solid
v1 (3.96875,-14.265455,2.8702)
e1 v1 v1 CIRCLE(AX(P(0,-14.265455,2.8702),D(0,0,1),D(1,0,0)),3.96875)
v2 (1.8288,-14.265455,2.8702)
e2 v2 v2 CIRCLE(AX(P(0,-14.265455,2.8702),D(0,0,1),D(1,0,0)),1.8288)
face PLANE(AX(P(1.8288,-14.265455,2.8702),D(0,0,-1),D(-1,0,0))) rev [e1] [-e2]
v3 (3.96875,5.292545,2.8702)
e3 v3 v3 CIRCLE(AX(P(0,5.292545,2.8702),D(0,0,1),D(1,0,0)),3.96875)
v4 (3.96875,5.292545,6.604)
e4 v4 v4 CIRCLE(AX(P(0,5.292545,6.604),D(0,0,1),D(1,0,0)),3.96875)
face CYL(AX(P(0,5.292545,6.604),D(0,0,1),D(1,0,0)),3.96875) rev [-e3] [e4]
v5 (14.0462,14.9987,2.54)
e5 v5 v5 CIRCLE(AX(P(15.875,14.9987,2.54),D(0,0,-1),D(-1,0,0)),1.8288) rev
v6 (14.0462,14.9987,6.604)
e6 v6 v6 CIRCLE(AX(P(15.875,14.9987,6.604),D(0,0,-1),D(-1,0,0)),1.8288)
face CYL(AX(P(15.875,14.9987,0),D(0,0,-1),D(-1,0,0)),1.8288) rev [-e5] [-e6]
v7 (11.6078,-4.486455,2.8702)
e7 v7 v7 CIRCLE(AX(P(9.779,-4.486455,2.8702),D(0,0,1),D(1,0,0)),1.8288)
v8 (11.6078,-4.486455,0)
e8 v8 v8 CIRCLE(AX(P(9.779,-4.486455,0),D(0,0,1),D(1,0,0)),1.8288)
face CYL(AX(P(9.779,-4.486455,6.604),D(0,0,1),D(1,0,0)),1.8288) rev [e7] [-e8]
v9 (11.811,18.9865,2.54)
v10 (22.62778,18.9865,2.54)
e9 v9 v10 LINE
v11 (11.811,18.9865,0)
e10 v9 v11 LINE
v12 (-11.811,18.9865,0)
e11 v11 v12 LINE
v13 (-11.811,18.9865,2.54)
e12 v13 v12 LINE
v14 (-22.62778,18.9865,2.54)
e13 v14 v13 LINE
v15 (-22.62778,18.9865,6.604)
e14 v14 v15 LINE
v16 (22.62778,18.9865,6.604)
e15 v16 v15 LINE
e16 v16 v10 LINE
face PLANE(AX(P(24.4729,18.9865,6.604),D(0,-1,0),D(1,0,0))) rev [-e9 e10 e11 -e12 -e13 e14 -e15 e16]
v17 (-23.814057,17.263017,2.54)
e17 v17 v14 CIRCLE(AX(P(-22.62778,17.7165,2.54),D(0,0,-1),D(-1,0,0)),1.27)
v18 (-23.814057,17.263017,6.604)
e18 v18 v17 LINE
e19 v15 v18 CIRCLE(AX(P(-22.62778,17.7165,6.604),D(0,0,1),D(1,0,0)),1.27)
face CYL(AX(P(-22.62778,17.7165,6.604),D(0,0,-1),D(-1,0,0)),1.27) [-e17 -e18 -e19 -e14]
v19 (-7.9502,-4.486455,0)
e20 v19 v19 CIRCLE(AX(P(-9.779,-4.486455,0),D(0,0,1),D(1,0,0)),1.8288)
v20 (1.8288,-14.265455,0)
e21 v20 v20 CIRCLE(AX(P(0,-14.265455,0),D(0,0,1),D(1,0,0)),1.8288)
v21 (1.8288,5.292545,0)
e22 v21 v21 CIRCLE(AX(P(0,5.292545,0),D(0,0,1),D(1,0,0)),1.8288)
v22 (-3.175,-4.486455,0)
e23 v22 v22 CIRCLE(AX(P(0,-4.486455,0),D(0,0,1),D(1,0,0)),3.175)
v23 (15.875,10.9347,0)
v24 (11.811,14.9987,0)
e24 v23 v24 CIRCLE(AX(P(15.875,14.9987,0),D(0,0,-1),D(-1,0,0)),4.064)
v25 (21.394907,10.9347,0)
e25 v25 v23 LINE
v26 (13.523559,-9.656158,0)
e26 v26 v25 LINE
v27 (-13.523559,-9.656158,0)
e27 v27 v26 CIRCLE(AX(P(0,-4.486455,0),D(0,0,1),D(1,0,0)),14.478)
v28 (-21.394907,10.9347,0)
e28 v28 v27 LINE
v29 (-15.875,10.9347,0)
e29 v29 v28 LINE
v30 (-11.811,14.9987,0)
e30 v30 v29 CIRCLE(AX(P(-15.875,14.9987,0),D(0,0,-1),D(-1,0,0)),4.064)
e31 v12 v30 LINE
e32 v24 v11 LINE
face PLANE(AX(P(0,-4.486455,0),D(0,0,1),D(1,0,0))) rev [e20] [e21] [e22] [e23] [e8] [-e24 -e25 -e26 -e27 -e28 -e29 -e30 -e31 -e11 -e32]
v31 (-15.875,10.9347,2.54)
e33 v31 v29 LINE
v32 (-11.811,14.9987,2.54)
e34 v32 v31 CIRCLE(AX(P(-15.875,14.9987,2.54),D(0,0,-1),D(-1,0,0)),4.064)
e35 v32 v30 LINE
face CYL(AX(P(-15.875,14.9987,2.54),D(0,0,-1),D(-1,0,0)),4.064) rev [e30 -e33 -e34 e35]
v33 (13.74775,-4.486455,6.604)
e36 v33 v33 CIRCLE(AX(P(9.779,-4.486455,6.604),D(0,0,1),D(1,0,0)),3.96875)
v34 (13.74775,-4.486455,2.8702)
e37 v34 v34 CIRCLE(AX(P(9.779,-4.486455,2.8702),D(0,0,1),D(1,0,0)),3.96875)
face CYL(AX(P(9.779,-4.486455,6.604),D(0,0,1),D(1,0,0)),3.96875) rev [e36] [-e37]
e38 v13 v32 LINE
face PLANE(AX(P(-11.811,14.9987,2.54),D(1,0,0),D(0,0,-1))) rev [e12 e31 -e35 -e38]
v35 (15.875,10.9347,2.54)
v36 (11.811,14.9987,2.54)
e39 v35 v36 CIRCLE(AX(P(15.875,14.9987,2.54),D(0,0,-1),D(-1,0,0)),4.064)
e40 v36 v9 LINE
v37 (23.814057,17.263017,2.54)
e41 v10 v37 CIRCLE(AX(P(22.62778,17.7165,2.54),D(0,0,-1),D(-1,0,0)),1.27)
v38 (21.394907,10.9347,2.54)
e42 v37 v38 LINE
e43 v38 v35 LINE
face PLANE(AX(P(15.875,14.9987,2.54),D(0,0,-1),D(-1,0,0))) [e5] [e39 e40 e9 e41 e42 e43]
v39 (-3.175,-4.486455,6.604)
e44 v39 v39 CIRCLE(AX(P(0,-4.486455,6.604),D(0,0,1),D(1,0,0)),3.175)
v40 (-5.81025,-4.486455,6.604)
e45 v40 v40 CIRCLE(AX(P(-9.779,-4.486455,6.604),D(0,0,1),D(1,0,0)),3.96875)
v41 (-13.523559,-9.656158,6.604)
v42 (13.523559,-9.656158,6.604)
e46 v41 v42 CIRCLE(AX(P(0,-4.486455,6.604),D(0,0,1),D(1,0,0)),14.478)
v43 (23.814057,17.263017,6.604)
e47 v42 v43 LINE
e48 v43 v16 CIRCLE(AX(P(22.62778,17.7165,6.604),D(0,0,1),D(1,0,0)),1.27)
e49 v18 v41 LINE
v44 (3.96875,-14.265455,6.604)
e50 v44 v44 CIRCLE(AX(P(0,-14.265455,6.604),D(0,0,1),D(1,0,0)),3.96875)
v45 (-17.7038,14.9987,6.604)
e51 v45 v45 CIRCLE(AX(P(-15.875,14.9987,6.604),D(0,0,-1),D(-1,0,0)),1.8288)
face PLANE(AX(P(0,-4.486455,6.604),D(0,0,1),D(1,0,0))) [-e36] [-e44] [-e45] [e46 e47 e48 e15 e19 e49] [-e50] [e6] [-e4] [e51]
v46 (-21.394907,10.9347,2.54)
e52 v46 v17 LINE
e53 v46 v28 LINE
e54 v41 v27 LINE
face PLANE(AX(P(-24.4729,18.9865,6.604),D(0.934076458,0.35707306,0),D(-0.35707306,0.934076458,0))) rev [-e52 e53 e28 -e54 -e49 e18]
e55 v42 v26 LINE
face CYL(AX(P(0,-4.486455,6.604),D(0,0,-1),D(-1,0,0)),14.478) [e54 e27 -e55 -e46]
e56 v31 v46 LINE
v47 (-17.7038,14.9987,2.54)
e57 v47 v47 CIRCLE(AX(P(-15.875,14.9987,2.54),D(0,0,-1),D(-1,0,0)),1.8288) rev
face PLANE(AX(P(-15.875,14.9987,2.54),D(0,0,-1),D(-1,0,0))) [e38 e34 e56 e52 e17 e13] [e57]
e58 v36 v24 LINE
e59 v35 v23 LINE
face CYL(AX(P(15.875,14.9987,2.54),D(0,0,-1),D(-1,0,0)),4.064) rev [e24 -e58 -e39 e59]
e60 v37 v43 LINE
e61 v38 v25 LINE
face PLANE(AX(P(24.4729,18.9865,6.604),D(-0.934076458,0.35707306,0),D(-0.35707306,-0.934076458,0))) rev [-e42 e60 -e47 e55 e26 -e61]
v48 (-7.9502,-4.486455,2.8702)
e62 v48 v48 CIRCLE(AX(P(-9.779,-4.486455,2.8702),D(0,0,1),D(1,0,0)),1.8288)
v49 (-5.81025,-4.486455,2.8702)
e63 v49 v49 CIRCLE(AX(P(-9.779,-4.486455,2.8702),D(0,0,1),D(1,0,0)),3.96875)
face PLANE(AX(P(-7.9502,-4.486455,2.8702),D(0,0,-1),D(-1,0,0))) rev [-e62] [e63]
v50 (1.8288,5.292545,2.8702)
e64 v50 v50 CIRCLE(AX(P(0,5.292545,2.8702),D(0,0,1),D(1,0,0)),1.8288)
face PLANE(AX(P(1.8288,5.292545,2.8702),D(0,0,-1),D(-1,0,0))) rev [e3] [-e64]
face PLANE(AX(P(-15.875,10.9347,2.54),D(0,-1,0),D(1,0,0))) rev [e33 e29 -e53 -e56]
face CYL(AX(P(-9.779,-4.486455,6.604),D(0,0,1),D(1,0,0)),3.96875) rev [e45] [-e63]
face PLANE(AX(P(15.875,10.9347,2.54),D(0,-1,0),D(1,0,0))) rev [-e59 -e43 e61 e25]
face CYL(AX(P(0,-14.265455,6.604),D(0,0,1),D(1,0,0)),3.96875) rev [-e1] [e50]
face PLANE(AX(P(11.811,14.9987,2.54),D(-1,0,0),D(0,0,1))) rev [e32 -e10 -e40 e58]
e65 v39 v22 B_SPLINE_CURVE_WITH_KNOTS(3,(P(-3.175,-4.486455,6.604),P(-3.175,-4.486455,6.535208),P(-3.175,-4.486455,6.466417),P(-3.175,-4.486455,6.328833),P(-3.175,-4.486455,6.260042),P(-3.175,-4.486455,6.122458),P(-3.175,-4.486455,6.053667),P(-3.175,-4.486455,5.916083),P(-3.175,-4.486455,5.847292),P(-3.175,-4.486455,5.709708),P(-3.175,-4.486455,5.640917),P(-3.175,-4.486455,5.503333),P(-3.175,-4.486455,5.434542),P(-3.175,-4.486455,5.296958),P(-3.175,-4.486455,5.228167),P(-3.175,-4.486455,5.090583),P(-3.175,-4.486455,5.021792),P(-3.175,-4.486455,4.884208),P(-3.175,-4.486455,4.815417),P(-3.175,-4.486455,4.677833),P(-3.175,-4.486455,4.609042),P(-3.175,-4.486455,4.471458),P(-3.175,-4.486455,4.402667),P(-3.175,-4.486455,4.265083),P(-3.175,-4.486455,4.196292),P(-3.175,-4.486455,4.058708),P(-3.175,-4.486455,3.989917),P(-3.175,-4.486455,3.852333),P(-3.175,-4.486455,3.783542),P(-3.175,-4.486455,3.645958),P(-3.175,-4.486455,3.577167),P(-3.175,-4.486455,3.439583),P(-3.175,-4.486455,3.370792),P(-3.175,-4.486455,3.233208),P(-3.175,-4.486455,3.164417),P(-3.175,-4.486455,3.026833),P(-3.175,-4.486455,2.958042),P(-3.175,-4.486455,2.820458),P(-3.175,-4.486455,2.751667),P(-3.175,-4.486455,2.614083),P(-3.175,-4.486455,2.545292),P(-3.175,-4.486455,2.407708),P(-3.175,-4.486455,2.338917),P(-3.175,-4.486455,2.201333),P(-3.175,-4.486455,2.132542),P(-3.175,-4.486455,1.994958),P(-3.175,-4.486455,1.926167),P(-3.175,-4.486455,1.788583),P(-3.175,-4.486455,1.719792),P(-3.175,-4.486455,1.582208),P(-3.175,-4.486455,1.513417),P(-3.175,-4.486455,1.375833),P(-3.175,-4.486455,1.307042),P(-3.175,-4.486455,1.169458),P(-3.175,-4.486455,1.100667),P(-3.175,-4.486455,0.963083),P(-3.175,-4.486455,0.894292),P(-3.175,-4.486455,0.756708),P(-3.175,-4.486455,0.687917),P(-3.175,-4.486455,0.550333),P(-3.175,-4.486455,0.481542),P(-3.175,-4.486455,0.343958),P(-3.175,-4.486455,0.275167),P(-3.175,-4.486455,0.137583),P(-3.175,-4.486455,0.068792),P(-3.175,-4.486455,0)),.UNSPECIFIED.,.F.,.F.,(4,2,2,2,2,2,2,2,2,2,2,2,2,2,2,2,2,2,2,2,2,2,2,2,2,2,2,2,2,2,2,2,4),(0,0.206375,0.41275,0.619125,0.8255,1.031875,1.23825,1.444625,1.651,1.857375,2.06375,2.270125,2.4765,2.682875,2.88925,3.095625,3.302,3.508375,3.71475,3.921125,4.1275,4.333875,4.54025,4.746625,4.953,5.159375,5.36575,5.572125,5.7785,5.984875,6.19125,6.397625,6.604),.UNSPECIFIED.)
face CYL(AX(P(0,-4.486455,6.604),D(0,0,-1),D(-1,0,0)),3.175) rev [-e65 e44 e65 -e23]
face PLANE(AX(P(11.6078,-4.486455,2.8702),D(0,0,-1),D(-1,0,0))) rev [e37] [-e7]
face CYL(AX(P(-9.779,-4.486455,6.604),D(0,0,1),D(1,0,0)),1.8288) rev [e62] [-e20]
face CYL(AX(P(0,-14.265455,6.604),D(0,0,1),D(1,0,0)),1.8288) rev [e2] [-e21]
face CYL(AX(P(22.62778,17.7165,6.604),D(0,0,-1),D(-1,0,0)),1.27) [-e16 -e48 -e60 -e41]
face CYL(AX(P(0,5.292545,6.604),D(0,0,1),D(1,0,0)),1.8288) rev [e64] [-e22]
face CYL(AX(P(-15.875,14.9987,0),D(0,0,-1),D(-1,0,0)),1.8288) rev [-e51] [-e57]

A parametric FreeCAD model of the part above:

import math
import FreeCAD as App
import Part
import Sketcher

V = App.Vector
Q = App.Units.Quantity


def edges_at(feature, points):
    """Names of the edges that pass closest to the given points."""
    edges = feature.Shape.Edges
    near = lambda p: min(range(len(edges)), key=lambda i: edges[i].distToShape(Part.Vertex(*p))[0])
    return sorted({f"Edge{near(p) + 1}" for p in points})

doc = App.newDocument("Part")
params = doc.addObject("Spreadsheet::Sheet", "Params")
for row, (alias, value) in enumerate([
    ("sketch1_diameter", "0.25 in"),
    ("sketch1_radius", "0.57 in"),
    ("sketch1_width", "1.927 in"),
    ("pad1_length", "0.26 in"),
    ("sketch2_diameter", "0.144 in"),
    ("hole_diameter", "0.144 in"),
    ("hole_cbore_diameter", "0.3125 in"),
    ("hole_cbore_depth", "0.147 in"),
    ("sketch3_diameter", "0.144 in"),
    ("hole2_diameter", "0.144 in"),
    ("sketch4_radius", "0.16 in"),
    ("sketch4_height", "0.157 in"),
    ("pocket1_length", "0.1 in"),
    ("fillet_radius", "0.05 in"),
], start=1):
    params.set(f"A{row}", alias)
    params.set(f"B{row}", "=" + value)
    params.setAlias(f"B{row}", alias)

body = doc.addObject("PartDesign::Body", "Body")

# Sketch on XY plane
sketch1 = body.newObject("Sketcher::SketchObject", "Sketch")
sketch1.AttachmentSupport = (doc.getObject("XY_Plane"), [""])
sketch1.MapMode = "FlatFace"
sketch1.addGeometry([
    Part.LineSegment(V(13.5, -9.7, 0), V(24.5, 19, 0)),  # 0
    Part.LineSegment(V(24.5, 19, 0), V(-24.5, 19, 0)),  # 1
    Part.LineSegment(V(-24.5, 19, 0), V(-13.5, -9.7, 0)),  # 2
    Part.ArcOfCircle(Part.Circle(V(0, -4.5, 0), V(0, 0, 1), 14.5), math.radians(-159), math.radians(-21)),  # 3
    Part.Circle(V(0, -4.5, 0), V(0, 0, 1), 3.2),  # 4
], False)
sketch1.addConstraint([
    Sketcher.Constraint("Coincident", 0, 2, 1, 1),
    Sketcher.Constraint("Coincident", 1, 2, 2, 1),
    Sketcher.Constraint("Tangent", 2, 2, 3, 1),
    Sketcher.Constraint("Tangent", 3, 2, 0, 1),
    Sketcher.Constraint("Horizontal", 1),
    Sketcher.Constraint("Coincident", 4, 3, 3, 3),
    Sketcher.Constraint("Symmetric", 2, 2, 3, 2, -2),
    Sketcher.Constraint("Diameter", 4, Q("0.25 in")),
    Sketcher.Constraint("Radius", 3, Q("0.57 in")),
    Sketcher.Constraint("DistanceX", 1, 2, 1, 1, Q("1.927 in")),
    Sketcher.Constraint("DistanceY", -1, 1, 0, 2, Q("0.7475 in")),
    Sketcher.Constraint("DistanceX", 2, 2, -1, 1, 13.523559),
])
sketch1.setExpression("Constraints[7]", "Params.sketch1_diameter")
sketch1.setExpression("Constraints[8]", "Params.sketch1_radius")
sketch1.setExpression("Constraints[9]", "Params.sketch1_width")
pad1 = body.newObject("PartDesign::Pad", "Pad")
pad1.Profile = sketch1
pad1.setExpression("Length", "Params.pad1_length")

# Sketch on XY plane
sketch2 = body.newObject("Sketcher::SketchObject", "Sketch001")
sketch2.AttachmentSupport = (doc.getObject("XY_Plane"), [""])
sketch2.MapMode = "FlatFace"
sketch2.AttachmentOffset = App.Placement(V(0, 0, 0.26 * 25.4), App.Rotation())
sketch2.addGeometry([
    Part.Circle(V(0, -14.3, 0), V(0, 0, 1), 1.8),
    Part.Circle(V(0, 5.3, 0), V(0, 0, 1), 1.8),
    Part.Circle(V(9.8, -4.5, 0), V(0, 0, 1), 1.8),
    Part.Circle(V(-9.8, -4.5, 0), V(0, 0, 1), 1.8),
], False)
sketch2.addConstraint([
    Sketcher.Constraint("Equal", 0, 1),
    Sketcher.Constraint("Equal", 1, 2),
    Sketcher.Constraint("Equal", 2, 3),
    Sketcher.Constraint("Symmetric", 2, 3, 3, 3, -2),
    Sketcher.Constraint("PointOnObject", 0, 3, -2),
    Sketcher.Constraint("PointOnObject", 1, 3, -2),
    Sketcher.Constraint("Diameter", 0, Q("0.144 in")),
    Sketcher.Constraint("DistanceY", 0, 3, 1, 3, Q("0.77 in")),
    Sketcher.Constraint("DistanceX", 3, 3, 2, 3, Q("0.77 in")),
    Sketcher.Constraint("DistanceY", 0, 3, 2, 3, Q("0.385 in")),
    Sketcher.Constraint("DistanceY", 0, 3, -1, 1, 14.265455),
])
sketch2.setExpression("Constraints[6]", "Params.sketch2_diameter")
doc.recompute()
hole = body.newObject("PartDesign::Hole", "Hole")
hole.Profile = sketch2
hole.ThreadType = "None"
hole.setExpression("Diameter", "Params.hole_diameter")
hole.DepthType = "ThroughAll"
hole.HoleCutType = "Counterbore"
hole.setExpression("HoleCutDiameter", "Params.hole_cbore_diameter")
hole.setExpression("HoleCutDepth", "Params.hole_cbore_depth")

# Sketch on XY plane
sketch3 = body.newObject("Sketcher::SketchObject", "Sketch002")
sketch3.AttachmentSupport = (doc.getObject("XY_Plane"), [""])
sketch3.MapMode = "FlatFace"
sketch3.addGeometry([
    Part.Circle(V(-15.9, 15, 0), V(0, 0, 1), 1.8),
    Part.Circle(V(15.9, 15, 0), V(0, 0, 1), 1.8),
], False)
sketch3.addConstraint([
    Sketcher.Constraint("Equal", 0, 1),
    Sketcher.Constraint("Symmetric", 0, 3, 1, 3, -2),
    Sketcher.Constraint("Diameter", 0, Q("0.144 in")),
    Sketcher.Constraint("DistanceX", 0, 3, 1, 3, Q("1.25 in")),
    Sketcher.Constraint("DistanceY", -1, 1, 0, 3, Q("0.5905 in")),
])
sketch3.setExpression("Constraints[2]", "Params.sketch3_diameter")
doc.recompute()
hole2 = body.newObject("PartDesign::Hole", "Hole001")
hole2.Profile = sketch3
hole2.ThreadType = "None"
hole2.setExpression("Diameter", "Params.hole2_diameter")
hole2.DepthType = "ThroughAll"
hole2.Reversed = True

# Sketch on XY plane
sketch4 = body.newObject("Sketcher::SketchObject", "Sketch003")
sketch4.AttachmentSupport = (doc.getObject("XY_Plane"), [""])
sketch4.MapMode = "FlatFace"
sketch4.addGeometry([
    Part.LineSegment(V(11.8, 15, 0), V(11.8, 19, 0)),  # 0
    Part.LineSegment(V(11.8, 19, 0), V(24.5, 19, 0)),  # 1
    Part.LineSegment(V(24.5, 19, 0), V(21.4, 10.9, 0)),  # 2
    Part.LineSegment(V(21.4, 10.9, 0), V(15.9, 10.9, 0)),  # 3
    Part.ArcOfCircle(Part.Circle(V(15.9, 15, 0), V(0, 0, 1), 4.1), math.radians(180), math.radians(270)),  # 4
    Part.LineSegment(V(-11.8, 19, 0), V(-11.8, 15, 0)),  # 5
    Part.ArcOfCircle(Part.Circle(V(-15.9, 15, 0), V(0, 0, 1), 4.1), math.radians(-90), math.radians(0)),  # 6
    Part.LineSegment(V(-15.9, 10.9, 0), V(-21.4, 10.9, 0)),  # 7
    Part.LineSegment(V(-21.4, 10.9, 0), V(-24.5, 19, 0)),  # 8
    Part.LineSegment(V(-24.5, 19, 0), V(-11.8, 19, 0)),  # 9
], False)
sketch4.addConstraint([
    Sketcher.Constraint("Coincident", 0, 2, 1, 1),
    Sketcher.Constraint("Coincident", 1, 2, 2, 1),
    Sketcher.Constraint("Coincident", 2, 2, 3, 1),
    Sketcher.Constraint("Tangent", 3, 2, 4, 2),
    Sketcher.Constraint("Tangent", 4, 1, 0, 1),
    Sketcher.Constraint("Tangent", 5, 2, 6, 2),
    Sketcher.Constraint("Tangent", 6, 1, 7, 1),
    Sketcher.Constraint("Coincident", 7, 2, 8, 1),
    Sketcher.Constraint("Coincident", 8, 2, 9, 1),
    Sketcher.Constraint("Coincident", 9, 2, 5, 1),
    Sketcher.Constraint("Vertical", 0),
    Sketcher.Constraint("Horizontal", 1),
    Sketcher.Constraint("Horizontal", 3),
    Sketcher.Constraint("Vertical", 5),
    Sketcher.Constraint("Horizontal", 7),
    Sketcher.Constraint("Horizontal", 9),
    Sketcher.Constraint("Equal", 4, 6),
    Sketcher.Constraint("Symmetric", 4, 3, 6, 3, -2),
    Sketcher.Constraint("Symmetric", 1, 2, 8, 2, -2),
    Sketcher.Constraint("Equal", 3, 7),
    Sketcher.Constraint("Radius", 4, Q("0.16 in")),
    Sketcher.Constraint("DistanceY", 0, 1, 0, 2, Q("0.157 in")),
    Sketcher.Constraint("DistanceX", 6, 3, 4, 3, Q("1.25 in")),
    Sketcher.Constraint("DistanceX", 1, 1, 1, 2, Q("0.4985 in")),
    Sketcher.Constraint("DistanceY", -1, 1, 4, 3, Q("0.5905 in")),
    Sketcher.Constraint("DistanceX", 3, 2, 3, 1, 5.519907),
])
sketch4.setExpression("Constraints[20]", "Params.sketch4_radius")
sketch4.setExpression("Constraints[21]", "Params.sketch4_height")
pocket1 = body.newObject("PartDesign::Pocket", "Pocket")
pocket1.Profile = sketch4
pocket1.setExpression("Length", "Params.pocket1_length")
pocket1.Reversed = True
doc.recompute()

fillet = body.newObject("PartDesign::Fillet", "Fillet")
fillet.Base = (pocket1, edges_at(pocket1, [(24.473, 18.986, 4.572), (-24.473, 18.986, 4.572)]))
fillet.setExpression("Radius", "Params.fillet_radius")

doc.recompute()
